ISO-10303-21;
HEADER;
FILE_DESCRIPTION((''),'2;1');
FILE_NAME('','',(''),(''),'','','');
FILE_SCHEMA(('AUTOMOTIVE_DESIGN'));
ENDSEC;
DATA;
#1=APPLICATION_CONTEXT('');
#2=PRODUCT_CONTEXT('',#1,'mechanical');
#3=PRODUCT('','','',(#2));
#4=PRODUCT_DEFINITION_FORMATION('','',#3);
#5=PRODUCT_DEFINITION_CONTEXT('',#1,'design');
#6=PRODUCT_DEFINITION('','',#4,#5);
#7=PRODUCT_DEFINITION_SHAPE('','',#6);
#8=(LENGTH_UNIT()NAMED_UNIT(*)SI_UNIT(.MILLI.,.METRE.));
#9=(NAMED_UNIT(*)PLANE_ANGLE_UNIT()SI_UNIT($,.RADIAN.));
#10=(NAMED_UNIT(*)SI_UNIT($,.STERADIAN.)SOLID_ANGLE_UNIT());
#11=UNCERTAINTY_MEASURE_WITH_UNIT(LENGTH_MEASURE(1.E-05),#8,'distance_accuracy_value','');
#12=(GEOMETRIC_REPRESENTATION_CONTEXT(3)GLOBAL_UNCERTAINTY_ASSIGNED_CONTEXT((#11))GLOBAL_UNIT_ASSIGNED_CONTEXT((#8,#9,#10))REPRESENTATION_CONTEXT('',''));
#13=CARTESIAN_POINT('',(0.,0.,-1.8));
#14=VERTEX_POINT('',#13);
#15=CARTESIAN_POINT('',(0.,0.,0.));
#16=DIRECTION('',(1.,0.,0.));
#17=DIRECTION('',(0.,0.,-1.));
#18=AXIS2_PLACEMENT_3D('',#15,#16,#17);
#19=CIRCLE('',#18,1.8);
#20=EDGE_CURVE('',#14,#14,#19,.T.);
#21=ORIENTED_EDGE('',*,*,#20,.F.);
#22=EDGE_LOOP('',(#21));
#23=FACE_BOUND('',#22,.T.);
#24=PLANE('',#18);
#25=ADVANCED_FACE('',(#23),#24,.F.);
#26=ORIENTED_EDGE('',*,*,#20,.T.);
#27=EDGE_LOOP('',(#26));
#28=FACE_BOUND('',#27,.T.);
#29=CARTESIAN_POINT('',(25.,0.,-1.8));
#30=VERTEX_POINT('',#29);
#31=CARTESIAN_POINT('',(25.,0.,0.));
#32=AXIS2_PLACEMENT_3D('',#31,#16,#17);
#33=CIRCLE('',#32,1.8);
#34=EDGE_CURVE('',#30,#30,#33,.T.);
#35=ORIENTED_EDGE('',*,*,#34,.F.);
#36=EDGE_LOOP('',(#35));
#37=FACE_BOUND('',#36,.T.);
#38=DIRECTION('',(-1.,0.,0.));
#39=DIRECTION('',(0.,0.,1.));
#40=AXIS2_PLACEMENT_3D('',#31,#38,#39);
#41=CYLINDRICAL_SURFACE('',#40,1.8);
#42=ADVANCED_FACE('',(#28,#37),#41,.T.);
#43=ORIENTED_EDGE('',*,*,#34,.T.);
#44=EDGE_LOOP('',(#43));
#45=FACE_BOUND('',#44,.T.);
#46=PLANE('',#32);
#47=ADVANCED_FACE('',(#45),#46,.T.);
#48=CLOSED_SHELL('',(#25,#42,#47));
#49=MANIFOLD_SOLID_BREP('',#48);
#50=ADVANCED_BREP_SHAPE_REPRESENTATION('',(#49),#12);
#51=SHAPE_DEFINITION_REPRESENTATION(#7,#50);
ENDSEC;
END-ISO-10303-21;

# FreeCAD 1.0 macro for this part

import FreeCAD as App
import Part
import Sketcher

V = App.Vector
Q = App.Units.Quantity

doc = App.newDocument("Part")
params = doc.addObject("Spreadsheet::Sheet", "Params")
for row, (alias, value) in enumerate([
    ("sketch1_diameter", "3.6 mm"),
    ("pad1_length", "25 mm"),
], start=1):
    params.set(f"A{row}", alias)
    params.set(f"B{row}", "=" + value)
    params.setAlias(f"B{row}", alias)

body = doc.addObject("PartDesign::Body", "Body")

sketch1 = body.newObject("Sketcher::SketchObject", "Sketch")
sketch1.AttachmentSupport = (doc.getObject("YZ_Plane"), [""])
sketch1.MapMode = "FlatFace"
sketch1.addGeometry(Part.Circle(V(0, 0, 0), V(0, 0, 1), 1.8), False)
sketch1.addConstraint(Sketcher.Constraint("Coincident", 0, 3, -1, 1))
sketch1.addConstraint(Sketcher.Constraint("Diameter", 0, Q("3.6 mm")))
sketch1.setExpression("Constraints[1]", "Params.sketch1_diameter")
pad1 = body.newObject("PartDesign::Pad", "Pad")
pad1.Profile = sketch1
pad1.setExpression("Length", "Params.pad1_length")

doc.recompute()
